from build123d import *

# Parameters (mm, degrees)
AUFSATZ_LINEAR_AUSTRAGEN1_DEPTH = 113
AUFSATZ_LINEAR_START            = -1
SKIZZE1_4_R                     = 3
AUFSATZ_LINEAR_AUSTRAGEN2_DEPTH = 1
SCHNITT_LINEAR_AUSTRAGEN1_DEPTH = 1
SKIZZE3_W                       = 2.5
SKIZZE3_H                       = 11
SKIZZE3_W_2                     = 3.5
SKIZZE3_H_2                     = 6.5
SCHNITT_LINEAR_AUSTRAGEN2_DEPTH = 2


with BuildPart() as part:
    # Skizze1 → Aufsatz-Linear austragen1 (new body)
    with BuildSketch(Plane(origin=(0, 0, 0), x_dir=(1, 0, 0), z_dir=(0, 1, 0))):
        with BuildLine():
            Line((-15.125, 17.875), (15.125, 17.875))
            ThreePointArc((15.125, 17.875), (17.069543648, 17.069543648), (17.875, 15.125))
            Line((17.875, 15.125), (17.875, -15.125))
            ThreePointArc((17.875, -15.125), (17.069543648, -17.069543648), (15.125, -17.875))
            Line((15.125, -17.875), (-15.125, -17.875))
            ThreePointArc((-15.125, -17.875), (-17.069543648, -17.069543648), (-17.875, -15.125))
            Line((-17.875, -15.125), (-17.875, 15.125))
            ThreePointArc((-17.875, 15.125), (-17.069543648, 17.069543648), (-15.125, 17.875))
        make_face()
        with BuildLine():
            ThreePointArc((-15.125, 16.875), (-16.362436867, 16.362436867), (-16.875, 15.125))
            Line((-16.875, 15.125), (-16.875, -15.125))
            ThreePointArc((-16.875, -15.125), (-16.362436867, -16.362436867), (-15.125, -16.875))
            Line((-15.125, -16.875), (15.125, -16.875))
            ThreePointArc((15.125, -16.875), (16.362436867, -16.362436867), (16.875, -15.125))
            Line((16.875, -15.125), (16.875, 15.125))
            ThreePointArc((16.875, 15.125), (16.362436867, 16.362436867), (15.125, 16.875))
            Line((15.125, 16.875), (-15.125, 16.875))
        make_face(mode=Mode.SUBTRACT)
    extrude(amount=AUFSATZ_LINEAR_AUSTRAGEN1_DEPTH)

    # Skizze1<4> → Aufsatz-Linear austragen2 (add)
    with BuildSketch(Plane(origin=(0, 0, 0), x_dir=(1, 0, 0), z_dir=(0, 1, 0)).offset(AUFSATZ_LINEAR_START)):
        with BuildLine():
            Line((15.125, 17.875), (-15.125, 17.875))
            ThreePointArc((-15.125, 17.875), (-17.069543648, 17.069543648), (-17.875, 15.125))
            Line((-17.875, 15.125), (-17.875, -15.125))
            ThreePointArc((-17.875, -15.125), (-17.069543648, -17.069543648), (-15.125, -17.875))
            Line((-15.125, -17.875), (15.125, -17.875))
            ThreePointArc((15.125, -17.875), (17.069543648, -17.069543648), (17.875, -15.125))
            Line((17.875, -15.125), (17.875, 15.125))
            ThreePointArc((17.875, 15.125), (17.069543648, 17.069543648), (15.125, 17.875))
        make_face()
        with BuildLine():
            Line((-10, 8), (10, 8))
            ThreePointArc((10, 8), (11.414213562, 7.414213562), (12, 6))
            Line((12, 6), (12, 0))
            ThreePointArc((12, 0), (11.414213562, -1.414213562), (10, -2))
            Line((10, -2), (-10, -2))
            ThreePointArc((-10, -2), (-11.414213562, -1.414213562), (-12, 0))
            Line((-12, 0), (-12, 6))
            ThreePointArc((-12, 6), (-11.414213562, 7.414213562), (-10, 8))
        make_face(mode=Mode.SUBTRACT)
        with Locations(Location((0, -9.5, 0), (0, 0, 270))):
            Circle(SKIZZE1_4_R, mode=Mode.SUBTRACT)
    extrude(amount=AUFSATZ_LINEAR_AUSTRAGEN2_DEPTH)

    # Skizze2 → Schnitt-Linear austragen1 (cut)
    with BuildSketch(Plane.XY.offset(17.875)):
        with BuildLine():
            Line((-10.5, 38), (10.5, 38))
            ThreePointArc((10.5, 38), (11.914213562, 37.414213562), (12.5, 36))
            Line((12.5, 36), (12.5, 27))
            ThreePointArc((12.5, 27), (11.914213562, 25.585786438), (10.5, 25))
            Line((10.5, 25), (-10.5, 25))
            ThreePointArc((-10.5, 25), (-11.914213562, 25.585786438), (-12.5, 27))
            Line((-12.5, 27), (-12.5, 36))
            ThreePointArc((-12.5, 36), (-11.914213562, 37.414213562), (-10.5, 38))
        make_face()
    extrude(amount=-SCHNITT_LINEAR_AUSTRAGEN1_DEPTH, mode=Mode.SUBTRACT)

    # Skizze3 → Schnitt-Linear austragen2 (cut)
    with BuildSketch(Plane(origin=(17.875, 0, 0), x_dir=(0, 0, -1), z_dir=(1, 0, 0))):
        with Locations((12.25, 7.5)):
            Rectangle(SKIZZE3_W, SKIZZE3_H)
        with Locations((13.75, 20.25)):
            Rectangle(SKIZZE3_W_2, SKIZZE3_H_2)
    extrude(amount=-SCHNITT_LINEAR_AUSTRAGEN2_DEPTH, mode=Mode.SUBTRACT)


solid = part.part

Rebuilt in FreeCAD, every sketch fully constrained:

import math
import FreeCAD as App
import Part
import Sketcher
from FreeCAD import Vector
Q = App.Units.Quantity


def add_polygon(sketch, points):
    """Adds a closed chain of lines whose ends are joined by coincident constraints."""
    first, n = sketch.GeometryCount, len(points)
    for a, b in zip(points, points[1:] + points[:1]):
        sketch.addGeometry(Part.LineSegment(App.Vector(*a, 0), App.Vector(*b, 0)), False)
    for i in range(n):
        sketch.addConstraint(Sketcher.Constraint("Coincident", first + i, 2, first + (i + 1) % n, 1))

doc = App.newDocument("Part")
body = doc.addObject("PartDesign::Body", "Body")

# Sketch on XZ plane
sketch1 = body.newObject("Sketcher::SketchObject", "Sketch")
sketch1.AttachmentSupport = (doc.getObject("XZ_Plane"), [""])
sketch1.MapMode = "FlatFace"
sketch1.addGeometry(Part.LineSegment(Vector(15.1, -17.9, 0), Vector(-15.1, -17.9, 0)), False)
sketch1.addGeometry(Part.ArcOfCircle(Part.Circle(Vector(-15.1, -15.1, 0), Vector(0, 0, 1), 2.8), math.radians(-180), math.radians(-90)), False)
sketch1.addGeometry(Part.LineSegment(Vector(-17.9, -15.1, 0), Vector(-17.9, 15.1, 0)), False)
sketch1.addGeometry(Part.ArcOfCircle(Part.Circle(Vector(-15.1, 15.1, 0), Vector(0, 0, 1), 2.8), math.radians(90), math.radians(180)), False)
sketch1.addGeometry(Part.LineSegment(Vector(-15.1, 17.9, 0), Vector(15.1, 17.9, 0)), False)
sketch1.addGeometry(Part.ArcOfCircle(Part.Circle(Vector(15.1, 15.1, 0), Vector(0, 0, 1), 2.8), math.radians(0), math.radians(90)), False)
sketch1.addGeometry(Part.LineSegment(Vector(17.9, 15.1, 0), Vector(17.9, -15.1, 0)), False)
sketch1.addGeometry(Part.ArcOfCircle(Part.Circle(Vector(15.1, -15.1, 0), Vector(0, 0, 1), 2.8), math.radians(-90), math.radians(0)), False)
sketch1.addGeometry(Part.LineSegment(Vector(-15.1, -16.9, 0), Vector(15.1, -16.9, 0)), False)
sketch1.addGeometry(Part.ArcOfCircle(Part.Circle(Vector(15.1, -15.1, 0), Vector(0, 0, 1), 1.8), math.radians(-90), math.radians(0)), False)
sketch1.addGeometry(Part.LineSegment(Vector(16.9, -15.1, 0), Vector(16.9, 15.1, 0)), False)
sketch1.addGeometry(Part.ArcOfCircle(Part.Circle(Vector(15.1, 15.1, 0), Vector(0, 0, 1), 1.8), math.radians(0), math.radians(90)), False)
sketch1.addGeometry(Part.LineSegment(Vector(15.1, 16.9, 0), Vector(-15.1, 16.9, 0)), False)
sketch1.addGeometry(Part.ArcOfCircle(Part.Circle(Vector(-15.1, 15.1, 0), Vector(0, 0, 1), 1.8), math.radians(90), math.radians(180)), False)
sketch1.addGeometry(Part.LineSegment(Vector(-16.9, 15.1, 0), Vector(-16.9, -15.1, 0)), False)
sketch1.addGeometry(Part.ArcOfCircle(Part.Circle(Vector(-15.1, -15.1, 0), Vector(0, 0, 1), 1.8), math.radians(180), math.radians(270)), False)
sketch1.addConstraint(Sketcher.Constraint("Tangent", 0, 2, 1, 2))
sketch1.addConstraint(Sketcher.Constraint("Tangent", 1, 1, 2, 1))
sketch1.addConstraint(Sketcher.Constraint("Tangent", 2, 2, 3, 2))
sketch1.addConstraint(Sketcher.Constraint("Tangent", 3, 1, 4, 1))
sketch1.addConstraint(Sketcher.Constraint("Tangent", 4, 2, 5, 2))
sketch1.addConstraint(Sketcher.Constraint("Tangent", 5, 1, 6, 1))
sketch1.addConstraint(Sketcher.Constraint("Tangent", 6, 2, 7, 2))
sketch1.addConstraint(Sketcher.Constraint("Tangent", 7, 1, 0, 1))
sketch1.addConstraint(Sketcher.Constraint("Tangent", 8, 2, 9, 1))
sketch1.addConstraint(Sketcher.Constraint("Tangent", 9, 2, 10, 1))
sketch1.addConstraint(Sketcher.Constraint("Tangent", 10, 2, 11, 1))
sketch1.addConstraint(Sketcher.Constraint("Tangent", 11, 2, 12, 1))
sketch1.addConstraint(Sketcher.Constraint("Tangent", 12, 2, 13, 1))
sketch1.addConstraint(Sketcher.Constraint("Tangent", 13, 2, 14, 1))
sketch1.addConstraint(Sketcher.Constraint("Tangent", 14, 2, 15, 1))
sketch1.addConstraint(Sketcher.Constraint("Tangent", 15, 2, 8, 1))
sketch1.addConstraint(Sketcher.Constraint("Horizontal", 0))
sketch1.addConstraint(Sketcher.Constraint("Vertical", 2))
sketch1.addConstraint(Sketcher.Constraint("Horizontal", 4))
sketch1.addConstraint(Sketcher.Constraint("Vertical", 6))
sketch1.addConstraint(Sketcher.Constraint("Horizontal", 8))
sketch1.addConstraint(Sketcher.Constraint("Vertical", 10))
sketch1.addConstraint(Sketcher.Constraint("Horizontal", 12))
sketch1.addConstraint(Sketcher.Constraint("Vertical", 14))
sketch1.addConstraint(Sketcher.Constraint("Coincident", 9, 3, 7, 3))
sketch1.addConstraint(Sketcher.Constraint("Coincident", 11, 3, 5, 3))
sketch1.addConstraint(Sketcher.Constraint("Coincident", 13, 3, 3, 3))
sketch1.addConstraint(Sketcher.Constraint("Equal", 1, 3))
sketch1.addConstraint(Sketcher.Constraint("Equal", 3, 5))
sketch1.addConstraint(Sketcher.Constraint("Equal", 5, 7))
sketch1.addConstraint(Sketcher.Constraint("Equal", 13, 15))
sketch1.addConstraint(Sketcher.Constraint("Symmetric", 1, 3, 5, 3, -1, 1))
sketch1.addConstraint(Sketcher.Constraint("Equal", 12, 2))
sketch1.addConstraint(Sketcher.Constraint("Radius", 1, Q("2.75 mm")))
sketch1.addConstraint(Sketcher.Constraint("Radius", 9, Q("1.75 mm")))
sketch1.addConstraint(Sketcher.Constraint("DistanceY", 0, 2, 3, 3, Q("33 mm")))
pad1 = body.newObject("PartDesign::Pad", "Pad")
pad1.Profile = sketch1
pad1.Length = 113
pad1.Reversed = True

# Sketch on XZ plane
sketch2 = body.newObject("Sketcher::SketchObject", "Sketch001")
sketch2.AttachmentSupport = (doc.getObject("XZ_Plane"), [""])
sketch2.MapMode = "FlatFace"
sketch2.AttachmentOffset = App.Placement(Vector(0, 0, 1), App.Rotation())
sketch2.addGeometry(Part.LineSegment(Vector(15.1, -17.9, 0), Vector(-15.1, -17.9, 0)), False)
sketch2.addGeometry(Part.ArcOfCircle(Part.Circle(Vector(-15.1, -15.1, 0), Vector(0, 0, 1), 2.8), math.radians(-180), math.radians(-90)), False)
sketch2.addGeometry(Part.LineSegment(Vector(-17.9, -15.1, 0), Vector(-17.9, 15.1, 0)), False)
sketch2.addGeometry(Part.ArcOfCircle(Part.Circle(Vector(-15.1, 15.1, 0), Vector(0, 0, 1), 2.8), math.radians(90), math.radians(180)), False)
sketch2.addGeometry(Part.LineSegment(Vector(-15.1, 17.9, 0), Vector(15.1, 17.9, 0)), False)
sketch2.addGeometry(Part.ArcOfCircle(Part.Circle(Vector(15.1, 15.1, 0), Vector(0, 0, 1), 2.8), math.radians(0), math.radians(90)), False)
sketch2.addGeometry(Part.LineSegment(Vector(17.9, 15.1, 0), Vector(17.9, -15.1, 0)), False)
sketch2.addGeometry(Part.ArcOfCircle(Part.Circle(Vector(15.1, -15.1, 0), Vector(0, 0, 1), 2.8), math.radians(-90), math.radians(0)), False)
sketch2.addGeometry(Part.Circle(Vector(0, 9.5, 0), Vector(0, 0, 1), 3), False)
sketch2.addGeometry(Part.ArcOfCircle(Part.Circle(Vector(-10, -6, 0), Vector(0, 0, 1), 2), math.radians(-180), math.radians(-90)), False)
sketch2.addGeometry(Part.LineSegment(Vector(-10, -8, 0), Vector(10, -8, 0)), False)
sketch2.addGeometry(Part.ArcOfCircle(Part.Circle(Vector(10, -6, 0), Vector(0, 0, 1), 2), math.radians(-90), math.radians(0)), False)
sketch2.addGeometry(Part.LineSegment(Vector(12, -6, 0), Vector(12, 0, 0)), False)
sketch2.addGeometry(Part.ArcOfCircle(Part.Circle(Vector(10, 0, 0), Vector(0, 0, 1), 2), math.radians(0), math.radians(90)), False)
sketch2.addGeometry(Part.LineSegment(Vector(10, 2, 0), Vector(-10, 2, 0)), False)
sketch2.addGeometry(Part.ArcOfCircle(Part.Circle(Vector(-10, 0, 0), Vector(0, 0, 1), 2), math.radians(90), math.radians(180)), False)
sketch2.addGeometry(Part.LineSegment(Vector(-12, 0, 0), Vector(-12, -6, 0)), False)
sketch2.addConstraint(Sketcher.Constraint("Tangent", 0, 2, 1, 2))
sketch2.addConstraint(Sketcher.Constraint("Tangent", 1, 1, 2, 1))
sketch2.addConstraint(Sketcher.Constraint("Tangent", 2, 2, 3, 2))
sketch2.addConstraint(Sketcher.Constraint("Tangent", 3, 1, 4, 1))
sketch2.addConstraint(Sketcher.Constraint("Tangent", 4, 2, 5, 2))
sketch2.addConstraint(Sketcher.Constraint("Tangent", 5, 1, 6, 1))
sketch2.addConstraint(Sketcher.Constraint("Tangent", 6, 2, 7, 2))
sketch2.addConstraint(Sketcher.Constraint("Tangent", 7, 1, 0, 1))
sketch2.addConstraint(Sketcher.Constraint("Tangent", 9, 2, 10, 1))
sketch2.addConstraint(Sketcher.Constraint("Tangent", 10, 2, 11, 1))
sketch2.addConstraint(Sketcher.Constraint("Tangent", 11, 2, 12, 1))
sketch2.addConstraint(Sketcher.Constraint("Tangent", 12, 2, 13, 1))
sketch2.addConstraint(Sketcher.Constraint("Tangent", 13, 2, 14, 1))
sketch2.addConstraint(Sketcher.Constraint("Tangent", 14, 2, 15, 1))
sketch2.addConstraint(Sketcher.Constraint("Tangent", 15, 2, 16, 1))
sketch2.addConstraint(Sketcher.Constraint("Tangent", 16, 2, 9, 1))
sketch2.addConstraint(Sketcher.Constraint("Horizontal", 0))
sketch2.addConstraint(Sketcher.Constraint("Vertical", 2))
sketch2.addConstraint(Sketcher.Constraint("Horizontal", 4))
sketch2.addConstraint(Sketcher.Constraint("Vertical", 6))
sketch2.addConstraint(Sketcher.Constraint("Horizontal", 10))
sketch2.addConstraint(Sketcher.Constraint("Vertical", 12))
sketch2.addConstraint(Sketcher.Constraint("Horizontal", 14))
sketch2.addConstraint(Sketcher.Constraint("Vertical", 16))
sketch2.addConstraint(Sketcher.Constraint("Equal", 1, 3))
sketch2.addConstraint(Sketcher.Constraint("Equal", 3, 5))
sketch2.addConstraint(Sketcher.Constraint("Equal", 5, 7))
sketch2.addConstraint(Sketcher.Constraint("Equal", 9, 11))
sketch2.addConstraint(Sketcher.Constraint("Equal", 11, 13))
sketch2.addConstraint(Sketcher.Constraint("Equal", 13, 15))
sketch2.addConstraint(Sketcher.Constraint("Symmetric", 1, 3, 5, 3, -1, 1))
sketch2.addConstraint(Sketcher.Constraint("Symmetric", 13, 3, 15, 3, -1, 1))
sketch2.addConstraint(Sketcher.Constraint("PointOnObject", 8, 3, -2))
sketch2.addConstraint(Sketcher.Constraint("Equal", 4, 2))
sketch2.addConstraint(Sketcher.Constraint("Diameter", 8, Q("6 mm")))
sketch2.addConstraint(Sketcher.Constraint("Radius", 9, Q("2 mm")))
sketch2.addConstraint(Sketcher.Constraint("DistanceX", 10, 1, 10, 2, Q("20 mm")))
sketch2.addConstraint(Sketcher.Constraint("DistanceY", 12, 1, 12, 2, Q("6 mm")))
sketch2.addConstraint(Sketcher.Constraint("Radius", 1, Q("2.75 mm")))
sketch2.addConstraint(Sketcher.Constraint("DistanceX", 0, 2, 0, 1, Q("30.25 mm")))
sketch2.addConstraint(Sketcher.Constraint("DistanceY", -1, 1, 8, 3, Q("9.5 mm")))
pad2 = body.newObject("PartDesign::Pad", "Pad001")
pad2.Profile = sketch2
pad2.Length = 1
pad2.Reversed = True

# Sketch on XY plane
sketch3 = body.newObject("Sketcher::SketchObject", "Sketch002")
sketch3.AttachmentSupport = (doc.getObject("XY_Plane"), [""])
sketch3.MapMode = "FlatFace"
sketch3.AttachmentOffset = App.Placement(Vector(0, 0, 17.875), App.Rotation())
sketch3.addGeometry(Part.LineSegment(Vector(10.5, 38, 0), Vector(-10.5, 38, 0)), False)
sketch3.addGeometry(Part.ArcOfCircle(Part.Circle(Vector(-10.5, 36, 0), Vector(0, 0, 1), 2), math.radians(90), math.radians(180)), False)
sketch3.addGeometry(Part.LineSegment(Vector(-12.5, 36, 0), Vector(-12.5, 27, 0)), False)
sketch3.addGeometry(Part.ArcOfCircle(Part.Circle(Vector(-10.5, 27, 0), Vector(0, 0, 1), 2), math.radians(-180), math.radians(-90)), False)
sketch3.addGeometry(Part.LineSegment(Vector(-10.5, 25, 0), Vector(10.5, 25, 0)), False)
sketch3.addGeometry(Part.ArcOfCircle(Part.Circle(Vector(10.5, 27, 0), Vector(0, 0, 1), 2), math.radians(-90), math.radians(0)), False)
sketch3.addGeometry(Part.LineSegment(Vector(12.5, 27, 0), Vector(12.5, 36, 0)), False)
sketch3.addGeometry(Part.ArcOfCircle(Part.Circle(Vector(10.5, 36, 0), Vector(0, 0, 1), 2), math.radians(0), math.radians(90)), False)
sketch3.addConstraint(Sketcher.Constraint("Tangent", 0, 2, 1, 1))
sketch3.addConstraint(Sketcher.Constraint("Tangent", 1, 2, 2, 1))
sketch3.addConstraint(Sketcher.Constraint("Tangent", 2, 2, 3, 1))
sketch3.addConstraint(Sketcher.Constraint("Tangent", 3, 2, 4, 1))
sketch3.addConstraint(Sketcher.Constraint("Tangent", 4, 2, 5, 1))
sketch3.addConstraint(Sketcher.Constraint("Tangent", 5, 2, 6, 1))
sketch3.addConstraint(Sketcher.Constraint("Tangent", 6, 2, 7, 1))
sketch3.addConstraint(Sketcher.Constraint("Tangent", 7, 2, 0, 1))
sketch3.addConstraint(Sketcher.Constraint("Horizontal", 0))
sketch3.addConstraint(Sketcher.Constraint("Vertical", 2))
sketch3.addConstraint(Sketcher.Constraint("Horizontal", 4))
sketch3.addConstraint(Sketcher.Constraint("Vertical", 6))
sketch3.addConstraint(Sketcher.Constraint("Equal", 1, 3))
sketch3.addConstraint(Sketcher.Constraint("Equal", 3, 5))
sketch3.addConstraint(Sketcher.Constraint("Equal", 5, 7))
sketch3.addConstraint(Sketcher.Constraint("Radius", 1, Q("2 mm")))
sketch3.addConstraint(Sketcher.Constraint("DistanceX", 0, 2, 0, 1, Q("21 mm")))
sketch3.addConstraint(Sketcher.Constraint("DistanceY", 2, 2, 2, 1, Q("9 mm")))
sketch3.addConstraint(Sketcher.Constraint("DistanceY", -1, 1, 1, 3, Q("36 mm")))
sketch3.addConstraint(Sketcher.Constraint("DistanceX", 1, 3, -1, 1, Q("10.5 mm")))
pocket1 = body.newObject("PartDesign::Pocket", "Pocket")
pocket1.Profile = sketch3
pocket1.Length = 1

# Sketch on YZ plane
sketch4 = body.newObject("Sketcher::SketchObject", "Sketch003")
sketch4.AttachmentSupport = (doc.getObject("YZ_Plane"), [""])
sketch4.MapMode = "FlatFace"
sketch4.AttachmentOffset = App.Placement(Vector(0, 0, 17.875), App.Rotation())
add_polygon(sketch4, [(13, -11), (2, -11), (2, -13.5), (13, -13.5)])  # lines 0-3
add_polygon(sketch4, [(23.5, -12), (17, -12), (17, -15.5), (23.5, -15.5)])  # lines 4-7
sketch4.addConstraint(Sketcher.Constraint("Horizontal", 0))
sketch4.addConstraint(Sketcher.Constraint("Vertical", 1))
sketch4.addConstraint(Sketcher.Constraint("Horizontal", 2))
sketch4.addConstraint(Sketcher.Constraint("Vertical", 3))
sketch4.addConstraint(Sketcher.Constraint("Horizontal", 4))
sketch4.addConstraint(Sketcher.Constraint("Vertical", 5))
sketch4.addConstraint(Sketcher.Constraint("Horizontal", 6))
sketch4.addConstraint(Sketcher.Constraint("Vertical", 7))
sketch4.addConstraint(Sketcher.Constraint("DistanceX", 0, 2, 0, 1, Q("11 mm")))
sketch4.addConstraint(Sketcher.Constraint("DistanceX", 4, 2, 4, 1, Q("6.5 mm")))
sketch4.addConstraint(Sketcher.Constraint("DistanceY", 1, 2, 1, 1, Q("2.5 mm")))
sketch4.addConstraint(Sketcher.Constraint("DistanceY", 5, 2, 5, 1, Q("3.5 mm")))
sketch4.addConstraint(Sketcher.Constraint("DistanceX", -1, 1, 0, 2, Q("2 mm")))
sketch4.addConstraint(Sketcher.Constraint("DistanceY", 0, 2, -1, 1, Q("11 mm")))
sketch4.addConstraint(Sketcher.Constraint("DistanceX", -1, 1, 4, 2, Q("17 mm")))
sketch4.addConstraint(Sketcher.Constraint("DistanceY", 4, 2, -1, 1, Q("12 mm")))
pocket2 = body.newObject("PartDesign::Pocket", "Pocket001")
pocket2.Profile = sketch4
pocket2.Length = 2

doc.recompute()
